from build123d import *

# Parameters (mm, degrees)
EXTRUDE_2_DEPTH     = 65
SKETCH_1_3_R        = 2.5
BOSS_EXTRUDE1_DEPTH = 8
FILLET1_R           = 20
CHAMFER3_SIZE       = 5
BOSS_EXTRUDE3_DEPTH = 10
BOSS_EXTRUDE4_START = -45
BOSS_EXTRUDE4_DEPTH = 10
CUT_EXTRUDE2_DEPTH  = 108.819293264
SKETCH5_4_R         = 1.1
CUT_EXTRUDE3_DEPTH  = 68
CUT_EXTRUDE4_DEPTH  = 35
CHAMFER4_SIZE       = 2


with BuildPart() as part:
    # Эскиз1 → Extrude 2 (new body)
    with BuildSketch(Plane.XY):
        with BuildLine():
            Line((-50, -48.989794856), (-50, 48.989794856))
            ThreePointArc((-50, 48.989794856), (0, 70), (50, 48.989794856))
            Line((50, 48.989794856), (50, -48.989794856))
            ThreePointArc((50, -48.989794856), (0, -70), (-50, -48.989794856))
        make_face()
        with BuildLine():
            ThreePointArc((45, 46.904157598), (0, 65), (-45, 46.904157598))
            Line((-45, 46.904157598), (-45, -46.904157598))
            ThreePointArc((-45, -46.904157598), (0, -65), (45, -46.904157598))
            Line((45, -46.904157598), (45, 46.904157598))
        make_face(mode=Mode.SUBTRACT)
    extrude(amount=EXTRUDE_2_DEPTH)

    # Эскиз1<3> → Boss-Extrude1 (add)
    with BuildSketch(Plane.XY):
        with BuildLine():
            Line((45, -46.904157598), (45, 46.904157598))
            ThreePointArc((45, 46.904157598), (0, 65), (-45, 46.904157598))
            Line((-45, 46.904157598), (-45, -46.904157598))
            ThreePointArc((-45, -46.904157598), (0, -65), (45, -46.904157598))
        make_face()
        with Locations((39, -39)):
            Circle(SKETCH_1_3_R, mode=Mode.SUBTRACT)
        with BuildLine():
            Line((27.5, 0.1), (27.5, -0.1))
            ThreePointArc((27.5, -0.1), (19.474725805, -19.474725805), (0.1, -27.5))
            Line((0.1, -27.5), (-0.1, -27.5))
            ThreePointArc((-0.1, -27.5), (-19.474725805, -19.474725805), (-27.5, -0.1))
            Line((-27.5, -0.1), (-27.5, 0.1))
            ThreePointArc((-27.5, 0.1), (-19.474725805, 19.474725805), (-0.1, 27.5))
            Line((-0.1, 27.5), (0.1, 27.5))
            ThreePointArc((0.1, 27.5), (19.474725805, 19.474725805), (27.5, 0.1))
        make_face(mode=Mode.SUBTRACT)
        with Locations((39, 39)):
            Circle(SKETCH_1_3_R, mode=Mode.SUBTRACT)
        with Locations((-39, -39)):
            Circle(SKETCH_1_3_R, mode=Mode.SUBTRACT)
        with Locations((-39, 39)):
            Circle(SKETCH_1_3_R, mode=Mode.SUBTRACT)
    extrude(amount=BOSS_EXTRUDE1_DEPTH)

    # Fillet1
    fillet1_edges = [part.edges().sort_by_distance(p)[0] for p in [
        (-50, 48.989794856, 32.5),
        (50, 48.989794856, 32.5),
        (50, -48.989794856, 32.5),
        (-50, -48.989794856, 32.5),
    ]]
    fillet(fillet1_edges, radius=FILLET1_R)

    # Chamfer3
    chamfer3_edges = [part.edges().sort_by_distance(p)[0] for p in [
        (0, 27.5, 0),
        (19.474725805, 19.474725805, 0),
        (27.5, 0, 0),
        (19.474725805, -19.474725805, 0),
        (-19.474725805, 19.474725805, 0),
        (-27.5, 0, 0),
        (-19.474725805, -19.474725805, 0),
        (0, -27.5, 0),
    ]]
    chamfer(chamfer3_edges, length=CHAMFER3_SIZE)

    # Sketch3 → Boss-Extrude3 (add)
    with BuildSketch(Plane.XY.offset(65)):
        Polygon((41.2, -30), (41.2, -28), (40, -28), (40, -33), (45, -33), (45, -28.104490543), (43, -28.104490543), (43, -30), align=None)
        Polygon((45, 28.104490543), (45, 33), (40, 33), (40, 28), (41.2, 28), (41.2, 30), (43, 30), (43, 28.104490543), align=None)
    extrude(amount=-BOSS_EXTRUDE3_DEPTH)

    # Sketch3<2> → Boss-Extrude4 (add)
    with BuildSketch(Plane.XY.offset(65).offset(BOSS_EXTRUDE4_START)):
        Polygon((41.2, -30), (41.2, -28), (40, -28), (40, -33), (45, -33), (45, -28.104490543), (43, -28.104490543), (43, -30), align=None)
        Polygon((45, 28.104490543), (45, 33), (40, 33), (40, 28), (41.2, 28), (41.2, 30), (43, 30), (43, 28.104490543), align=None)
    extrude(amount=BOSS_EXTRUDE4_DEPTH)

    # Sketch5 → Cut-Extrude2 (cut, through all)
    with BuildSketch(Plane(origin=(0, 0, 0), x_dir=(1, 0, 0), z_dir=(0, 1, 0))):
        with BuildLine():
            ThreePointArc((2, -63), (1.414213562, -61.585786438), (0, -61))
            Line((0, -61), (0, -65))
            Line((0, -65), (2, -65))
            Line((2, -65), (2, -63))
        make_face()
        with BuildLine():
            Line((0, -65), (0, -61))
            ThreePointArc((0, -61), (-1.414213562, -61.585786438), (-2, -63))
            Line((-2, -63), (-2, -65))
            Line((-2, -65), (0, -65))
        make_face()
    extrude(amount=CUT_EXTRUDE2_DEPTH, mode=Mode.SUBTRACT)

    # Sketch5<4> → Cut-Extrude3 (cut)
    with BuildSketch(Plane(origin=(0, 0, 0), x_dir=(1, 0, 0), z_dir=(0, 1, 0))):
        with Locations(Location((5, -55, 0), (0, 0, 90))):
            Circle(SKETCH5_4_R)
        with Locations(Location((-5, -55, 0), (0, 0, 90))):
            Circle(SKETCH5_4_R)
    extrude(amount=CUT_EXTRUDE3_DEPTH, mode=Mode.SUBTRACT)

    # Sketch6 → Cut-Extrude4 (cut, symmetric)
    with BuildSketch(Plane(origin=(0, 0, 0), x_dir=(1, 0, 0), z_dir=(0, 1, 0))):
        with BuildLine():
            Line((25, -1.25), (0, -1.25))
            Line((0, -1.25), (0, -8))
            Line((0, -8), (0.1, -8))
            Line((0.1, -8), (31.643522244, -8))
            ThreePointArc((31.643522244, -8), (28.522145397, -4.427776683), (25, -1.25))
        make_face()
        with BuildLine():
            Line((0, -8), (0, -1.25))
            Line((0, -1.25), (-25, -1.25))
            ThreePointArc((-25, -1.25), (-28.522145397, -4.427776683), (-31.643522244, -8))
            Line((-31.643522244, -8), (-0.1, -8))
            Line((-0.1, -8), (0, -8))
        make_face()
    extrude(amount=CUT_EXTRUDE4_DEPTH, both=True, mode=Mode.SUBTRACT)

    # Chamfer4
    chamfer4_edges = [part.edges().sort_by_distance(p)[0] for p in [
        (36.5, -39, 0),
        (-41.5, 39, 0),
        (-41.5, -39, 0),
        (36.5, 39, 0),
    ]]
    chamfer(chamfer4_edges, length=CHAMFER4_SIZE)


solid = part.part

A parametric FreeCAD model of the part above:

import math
import FreeCAD as App
import Part
import Sketcher
Q = App.Units.Quantity


def edges_at(feature, points):
    """Names of the edges that pass closest to the given points."""
    edges = feature.Shape.Edges
    near = lambda p: min(range(len(edges)), key=lambda i: edges[i].distToShape(Part.Vertex(*p))[0])
    return sorted({f"Edge{near(p) + 1}" for p in points})

doc = App.newDocument("Part")
body = doc.addObject("PartDesign::Body", "Body")

sketch1 = body.newObject("Sketcher::SketchObject", "Sketch")
sketch1.AttachmentSupport = (doc.getObject("XY_Plane"), [""])
sketch1.MapMode = "FlatFace"
sketch1.addGeometry([
    Part.LineSegment(App.Vector(-50, 48.989795, 0), App.Vector(-50, -48.989795, 0)),
    Part.ArcOfCircle(Part.Circle(App.Vector(0, 0, 0), App.Vector(0, 0, 1), 70), math.radians(-135.584691), math.radians(-44.415309)),
    Part.LineSegment(App.Vector(50, -48.989795, 0), App.Vector(50, 48.989795, 0)),
    Part.ArcOfCircle(Part.Circle(App.Vector(0, 0, 0), App.Vector(0, 0, 1), 70), math.radians(44.415309), math.radians(135.584691)),
    Part.LineSegment(App.Vector(45, 46.904158, 0), App.Vector(45, -46.904158, 0)),
    Part.ArcOfCircle(Part.Circle(App.Vector(0, 0, 0), App.Vector(0, 0, 1), 65), math.radians(-133.813061), math.radians(-46.186939)),
    Part.LineSegment(App.Vector(-45, -46.904158, 0), App.Vector(-45, 46.904158, 0)),
    Part.ArcOfCircle(Part.Circle(App.Vector(0, 0, 0), App.Vector(0, 0, 1), 65), math.radians(46.186939), math.radians(133.813061)),
], False)
sketch1.addConstraint([
    Sketcher.Constraint("Coincident", 0, 2, 1, 1),
    Sketcher.Constraint("Coincident", 1, 2, 2, 1),
    Sketcher.Constraint("Coincident", 2, 2, 3, 1),
    Sketcher.Constraint("Coincident", 3, 2, 0, 1),
    Sketcher.Constraint("Coincident", 4, 2, 5, 2),
    Sketcher.Constraint("Coincident", 5, 1, 6, 1),
    Sketcher.Constraint("Coincident", 6, 2, 7, 2),
    Sketcher.Constraint("Coincident", 7, 1, 4, 1),
    Sketcher.Constraint("Vertical", 0),
    Sketcher.Constraint("Vertical", 2),
    Sketcher.Constraint("Vertical", 4),
    Sketcher.Constraint("Vertical", 6),
    Sketcher.Constraint("Coincident", 1, 3, -1, 1),
    Sketcher.Constraint("Coincident", 3, 3, -1, 1),
    Sketcher.Constraint("Coincident", 5, 3, -1, 1),
    Sketcher.Constraint("Coincident", 7, 3, -1, 1),
    Sketcher.Constraint("Equal", 1, 3),
    Sketcher.Constraint("Equal", 5, 7),
    Sketcher.Constraint("Horizontal", 0, 2, 1, 2),
    Sketcher.Constraint("Horizontal", 4, 2, 5, 1),
    Sketcher.Constraint("Radius", 1, Q("70 mm")),
    Sketcher.Constraint("Radius", 5, Q("65 mm")),
    Sketcher.Constraint("DistanceX", 0, 2, -1, 1, Q("50 mm")),
    Sketcher.Constraint("DistanceX", -1, 1, 4, 2, Q("45 mm")),
])
pad1 = body.newObject("PartDesign::Pad", "Pad")
pad1.Profile = sketch1
pad1.Length = 65

sketch2 = body.newObject("Sketcher::SketchObject", "Sketch001")
sketch2.AttachmentSupport = (doc.getObject("XY_Plane"), [""])
sketch2.MapMode = "FlatFace"
sketch2.addGeometry([
    Part.LineSegment(App.Vector(45, -46.904158, 0), App.Vector(45, 46.904158, 0)),
    Part.ArcOfCircle(Part.Circle(App.Vector(0, 0, 0), App.Vector(0, 0, 1), 65), math.radians(46.186939), math.radians(133.813061)),
    Part.LineSegment(App.Vector(-45, 46.904158, 0), App.Vector(-45, -46.904158, 0)),
    Part.ArcOfCircle(Part.Circle(App.Vector(0, 0, 0), App.Vector(0, 0, 1), 65), math.radians(-133.813061), math.radians(-46.186939)),
    Part.Circle(App.Vector(-39, -39, 0), App.Vector(0, 0, 1), 2.5),
    Part.Circle(App.Vector(39, -39, 0), App.Vector(0, 0, 1), 2.5),
    Part.Circle(App.Vector(-39, 39, 0), App.Vector(0, 0, 1), 2.5),
    Part.ArcOfCircle(Part.Circle(App.Vector(0.1, 0.1, 0), App.Vector(0, 0, 1), 27.4), math.radians(0), math.radians(90)),
    Part.LineSegment(App.Vector(27.5, 0.1, 0), App.Vector(27.5, -0.1, 0)),
    Part.ArcOfCircle(Part.Circle(App.Vector(0.1, -0.1, 0), App.Vector(0, 0, 1), 27.4), math.radians(-90), math.radians(0)),
    Part.LineSegment(App.Vector(0.1, -27.5, 0), App.Vector(-0.1, -27.5, 0)),
    Part.ArcOfCircle(Part.Circle(App.Vector(-0.1, -0.1, 0), App.Vector(0, 0, 1), 27.4), math.radians(180), math.radians(270)),
    Part.LineSegment(App.Vector(-27.5, -0.1, 0), App.Vector(-27.5, 0.1, 0)),
    Part.ArcOfCircle(Part.Circle(App.Vector(-0.1, 0.1, 0), App.Vector(0, 0, 1), 27.4), math.radians(90), math.radians(180)),
    Part.LineSegment(App.Vector(-0.1, 27.5, 0), App.Vector(0.1, 27.5, 0)),
    Part.Circle(App.Vector(39, 39, 0), App.Vector(0, 0, 1), 2.5),
], False)
sketch2.addConstraint([
    Sketcher.Constraint("Coincident", 0, 2, 1, 1),
    Sketcher.Constraint("Coincident", 1, 2, 2, 1),
    Sketcher.Constraint("Coincident", 2, 2, 3, 1),
    Sketcher.Constraint("Coincident", 3, 2, 0, 1),
    Sketcher.Constraint("Tangent", 7, 1, 8, 1),
    Sketcher.Constraint("Tangent", 8, 2, 9, 2),
    Sketcher.Constraint("Tangent", 9, 1, 10, 1),
    Sketcher.Constraint("Tangent", 10, 2, 11, 2),
    Sketcher.Constraint("Tangent", 11, 1, 12, 1),
    Sketcher.Constraint("Tangent", 12, 2, 13, 2),
    Sketcher.Constraint("Tangent", 13, 1, 14, 1),
    Sketcher.Constraint("Tangent", 14, 2, 7, 2),
    Sketcher.Constraint("Vertical", 0),
    Sketcher.Constraint("Vertical", 2),
    Sketcher.Constraint("Vertical", 8),
    Sketcher.Constraint("Horizontal", 10),
    Sketcher.Constraint("Vertical", 12),
    Sketcher.Constraint("Horizontal", 14),
    Sketcher.Constraint("Coincident", 1, 3, -1, 1),
    Sketcher.Constraint("Coincident", 3, 3, -1, 1),
    Sketcher.Constraint("Equal", 1, 3),
    Sketcher.Constraint("Equal", 4, 5),
    Sketcher.Constraint("Equal", 5, 6),
    Sketcher.Constraint("Equal", 7, 9),
    Sketcher.Constraint("Equal", 9, 11),
    Sketcher.Constraint("Equal", 11, 13),
    Sketcher.Constraint("Equal", 6, 15),
    Sketcher.Constraint("Symmetric", 5, 3, 6, 3, -1, 1),
    Sketcher.Constraint("Symmetric", 7, 3, 11, 3, -1, 1),
    Sketcher.Constraint("Symmetric", 4, 3, 15, 3, -1, 1),
    Sketcher.Constraint("Symmetric", 4, 3, 5, 3, -2),
    Sketcher.Constraint("Horizontal", 0, 2, 1, 2),
    Sketcher.Constraint("Equal", 14, 8),
    Sketcher.Constraint("Diameter", 4, Q("5 mm")),
    Sketcher.Constraint("Radius", 1, Q("65 mm")),
    Sketcher.Constraint("Radius", 7, Q("27.4 mm")),
    Sketcher.Constraint("DistanceX", 10, 2, 10, 1, Q("0.2 mm")),
    Sketcher.Constraint("DistanceX", 4, 3, -1, 1, Q("39 mm")),
    Sketcher.Constraint("DistanceY", 4, 3, -1, 1, Q("39 mm")),
    Sketcher.Constraint("DistanceX", -1, 1, 0, 2, Q("45 mm")),
])
pad2 = body.newObject("PartDesign::Pad", "Pad001")
pad2.Profile = sketch2
pad2.Length = 8
doc.recompute()

fillet = body.newObject("PartDesign::Fillet", "Fillet")
fillet.Base = (pad2, edges_at(pad2, [
    (-50, 48.99, 32.5),
    (50, 48.99, 32.5),
    (50, -48.99, 32.5),
    (-50, -48.99, 32.5),
]))
fillet.Radius = 20
doc.recompute()

chamfer = body.newObject("PartDesign::Chamfer", "Chamfer")
chamfer.Base = (fillet, edges_at(fillet, [
    (0, 27.5, 0),
    (19.475, 19.475, 0),
    (27.5, 0, 0),
    (19.475, -19.475, 0),
    (-19.475, 19.475, 0),
    (-27.5, 0, 0),
    (-19.475, -19.475, 0),
    (0, -27.5, 0),
]))
chamfer.Size = 5

sketch3 = body.newObject("Sketcher::SketchObject", "Sketch002")
sketch3.AttachmentSupport = (doc.getObject("XY_Plane"), [""])
sketch3.MapMode = "FlatFace"
sketch3.AttachmentOffset = App.Placement(App.Vector(0, 0, 65), App.Rotation())
sketch3.addGeometry([
    Part.LineSegment(App.Vector(41.2, -30, 0), App.Vector(41.2, -28, 0)),
    Part.LineSegment(App.Vector(41.2, -28, 0), App.Vector(40, -28, 0)),
    Part.LineSegment(App.Vector(40, -28, 0), App.Vector(40, -33, 0)),
    Part.LineSegment(App.Vector(40, -33, 0), App.Vector(45, -33, 0)),
    Part.LineSegment(App.Vector(45, -33, 0), App.Vector(45, -28.104491, 0)),
    Part.LineSegment(App.Vector(45, -28.104491, 0), App.Vector(43, -28.104491, 0)),
    Part.LineSegment(App.Vector(43, -28.104491, 0), App.Vector(43, -30, 0)),
    Part.LineSegment(App.Vector(43, -30, 0), App.Vector(41.2, -30, 0)),
    Part.LineSegment(App.Vector(45, 28.104491, 0), App.Vector(45, 33, 0)),
    Part.LineSegment(App.Vector(45, 33, 0), App.Vector(40, 33, 0)),
    Part.LineSegment(App.Vector(40, 33, 0), App.Vector(40, 28, 0)),
    Part.LineSegment(App.Vector(40, 28, 0), App.Vector(41.2, 28, 0)),
    Part.LineSegment(App.Vector(41.2, 28, 0), App.Vector(41.2, 30, 0)),
    Part.LineSegment(App.Vector(41.2, 30, 0), App.Vector(43, 30, 0)),
    Part.LineSegment(App.Vector(43, 30, 0), App.Vector(43, 28.104491, 0)),
    Part.LineSegment(App.Vector(43, 28.104491, 0), App.Vector(45, 28.104491, 0)),
], False)
sketch3.addConstraint([
    Sketcher.Constraint("Coincident", 0, 2, 1, 1),
    Sketcher.Constraint("Coincident", 1, 2, 2, 1),
    Sketcher.Constraint("Coincident", 2, 2, 3, 1),
    Sketcher.Constraint("Coincident", 3, 2, 4, 1),
    Sketcher.Constraint("Coincident", 4, 2, 5, 1),
    Sketcher.Constraint("Coincident", 5, 2, 6, 1),
    Sketcher.Constraint("Coincident", 6, 2, 7, 1),
    Sketcher.Constraint("Coincident", 7, 2, 0, 1),
    Sketcher.Constraint("Coincident", 8, 2, 9, 1),
    Sketcher.Constraint("Coincident", 9, 2, 10, 1),
    Sketcher.Constraint("Coincident", 10, 2, 11, 1),
    Sketcher.Constraint("Coincident", 11, 2, 12, 1),
    Sketcher.Constraint("Coincident", 12, 2, 13, 1),
    Sketcher.Constraint("Coincident", 13, 2, 14, 1),
    Sketcher.Constraint("Coincident", 14, 2, 15, 1),
    Sketcher.Constraint("Coincident", 15, 2, 8, 1),
    Sketcher.Constraint("Vertical", 0),
    Sketcher.Constraint("Horizontal", 1),
    Sketcher.Constraint("Vertical", 2),
    Sketcher.Constraint("Horizontal", 3),
    Sketcher.Constraint("Vertical", 4),
    Sketcher.Constraint("Horizontal", 5),
    Sketcher.Constraint("Vertical", 6),
    Sketcher.Constraint("Horizontal", 7),
    Sketcher.Constraint("Vertical", 8),
    Sketcher.Constraint("Horizontal", 9),
    Sketcher.Constraint("Vertical", 10),
    Sketcher.Constraint("Horizontal", 11),
    Sketcher.Constraint("Vertical", 12),
    Sketcher.Constraint("Horizontal", 13),
    Sketcher.Constraint("Vertical", 14),
    Sketcher.Constraint("Horizontal", 15),
    Sketcher.Constraint("Symmetric", 3, 2, 8, 2, -1),
    Sketcher.Constraint("Symmetric", 1, 2, 10, 2, -1),
    Sketcher.Constraint("Symmetric", 7, 2, 12, 2, -1),
    Sketcher.Constraint("Symmetric", 5, 2, 14, 2, -1),
    Sketcher.Constraint("Equal", 15, 0),
    Sketcher.Constraint("Equal", 9, 2),
    Sketcher.Constraint("DistanceX", 3, 1, 3, 2, Q("5 mm")),
    Sketcher.Constraint("DistanceX", 5, 2, 5, 1, Q("2 mm")),
    Sketcher.Constraint("DistanceX", 1, 2, 1, 1, Q("1.2 mm")),
    Sketcher.Constraint("DistanceY", 0, 2, -1, 1, Q("28 mm")),
    Sketcher.Constraint("DistanceX", -1, 1, 1, 2, Q("40 mm")),
    Sketcher.Constraint("DistanceY", 4, 1, 4, 2, Q("4.895509 mm")),
])
pad3 = body.newObject("PartDesign::Pad", "Pad002")
pad3.Profile = sketch3
pad3.Length = 10
pad3.Reversed = True

sketch4 = body.newObject("Sketcher::SketchObject", "Sketch003")
sketch4.AttachmentSupport = (doc.getObject("XY_Plane"), [""])
sketch4.MapMode = "FlatFace"
sketch4.AttachmentOffset = App.Placement(App.Vector(0, 0, 20), App.Rotation())
sketch4.addGeometry([
    Part.LineSegment(App.Vector(41.2, -30, 0), App.Vector(41.2, -28, 0)),
    Part.LineSegment(App.Vector(41.2, -28, 0), App.Vector(40, -28, 0)),
    Part.LineSegment(App.Vector(40, -28, 0), App.Vector(40, -33, 0)),
    Part.LineSegment(App.Vector(40, -33, 0), App.Vector(45, -33, 0)),
    Part.LineSegment(App.Vector(45, -33, 0), App.Vector(45, -28.104491, 0)),
    Part.LineSegment(App.Vector(45, -28.104491, 0), App.Vector(43, -28.104491, 0)),
    Part.LineSegment(App.Vector(43, -28.104491, 0), App.Vector(43, -30, 0)),
    Part.LineSegment(App.Vector(43, -30, 0), App.Vector(41.2, -30, 0)),
    Part.LineSegment(App.Vector(45, 28.104491, 0), App.Vector(45, 33, 0)),
    Part.LineSegment(App.Vector(45, 33, 0), App.Vector(40, 33, 0)),
    Part.LineSegment(App.Vector(40, 33, 0), App.Vector(40, 28, 0)),
    Part.LineSegment(App.Vector(40, 28, 0), App.Vector(41.2, 28, 0)),
    Part.LineSegment(App.Vector(41.2, 28, 0), App.Vector(41.2, 30, 0)),
    Part.LineSegment(App.Vector(41.2, 30, 0), App.Vector(43, 30, 0)),
    Part.LineSegment(App.Vector(43, 30, 0), App.Vector(43, 28.104491, 0)),
    Part.LineSegment(App.Vector(43, 28.104491, 0), App.Vector(45, 28.104491, 0)),
], False)
sketch4.addConstraint([
    Sketcher.Constraint("Coincident", 0, 2, 1, 1),
    Sketcher.Constraint("Coincident", 1, 2, 2, 1),
    Sketcher.Constraint("Coincident", 2, 2, 3, 1),
    Sketcher.Constraint("Coincident", 3, 2, 4, 1),
    Sketcher.Constraint("Coincident", 4, 2, 5, 1),
    Sketcher.Constraint("Coincident", 5, 2, 6, 1),
    Sketcher.Constraint("Coincident", 6, 2, 7, 1),
    Sketcher.Constraint("Coincident", 7, 2, 0, 1),
    Sketcher.Constraint("Coincident", 8, 2, 9, 1),
    Sketcher.Constraint("Coincident", 9, 2, 10, 1),
    Sketcher.Constraint("Coincident", 10, 2, 11, 1),
    Sketcher.Constraint("Coincident", 11, 2, 12, 1),
    Sketcher.Constraint("Coincident", 12, 2, 13, 1),
    Sketcher.Constraint("Coincident", 13, 2, 14, 1),
    Sketcher.Constraint("Coincident", 14, 2, 15, 1),
    Sketcher.Constraint("Coincident", 15, 2, 8, 1),
    Sketcher.Constraint("Vertical", 0),
    Sketcher.Constraint("Horizontal", 1),
    Sketcher.Constraint("Vertical", 2),
    Sketcher.Constraint("Horizontal", 3),
    Sketcher.Constraint("Vertical", 4),
    Sketcher.Constraint("Horizontal", 5),
    Sketcher.Constraint("Vertical", 6),
    Sketcher.Constraint("Horizontal", 7),
    Sketcher.Constraint("Vertical", 8),
    Sketcher.Constraint("Horizontal", 9),
    Sketcher.Constraint("Vertical", 10),
    Sketcher.Constraint("Horizontal", 11),
    Sketcher.Constraint("Vertical", 12),
    Sketcher.Constraint("Horizontal", 13),
    Sketcher.Constraint("Vertical", 14),
    Sketcher.Constraint("Horizontal", 15),
    Sketcher.Constraint("Symmetric", 3, 2, 8, 2, -1),
    Sketcher.Constraint("Symmetric", 1, 2, 10, 2, -1),
    Sketcher.Constraint("Symmetric", 7, 2, 12, 2, -1),
    Sketcher.Constraint("Symmetric", 5, 2, 14, 2, -1),
    Sketcher.Constraint("Equal", 15, 0),
    Sketcher.Constraint("Equal", 9, 2),
    Sketcher.Constraint("DistanceX", 3, 1, 3, 2, Q("5 mm")),
    Sketcher.Constraint("DistanceX", 5, 2, 5, 1, Q("2 mm")),
    Sketcher.Constraint("DistanceX", 1, 2, 1, 1, Q("1.2 mm")),
    Sketcher.Constraint("DistanceY", 0, 2, -1, 1, Q("28 mm")),
    Sketcher.Constraint("DistanceX", -1, 1, 1, 2, Q("40 mm")),
    Sketcher.Constraint("DistanceY", 4, 1, 4, 2, Q("4.895509 mm")),
])
pad4 = body.newObject("PartDesign::Pad", "Pad003")
pad4.Profile = sketch4
pad4.Length = 10

sketch5 = body.newObject("Sketcher::SketchObject", "Sketch004")
sketch5.AttachmentSupport = (doc.getObject("XZ_Plane"), [""])
sketch5.MapMode = "FlatFace"
sketch5.addGeometry([
    Part.ArcOfCircle(Part.Circle(App.Vector(0, 63, 0), App.Vector(0, 0, 1), 2), math.radians(-90), math.radians(0)),
    Part.ArcOfCircle(Part.Circle(App.Vector(0, 63, 0), App.Vector(0, 0, 1), 2), math.radians(-180), math.radians(-90)),
    Part.LineSegment(App.Vector(-2, 63, 0), App.Vector(-2, 65, 0)),
    Part.LineSegment(App.Vector(-2, 65, 0), App.Vector(2, 65, 0)),
    Part.LineSegment(App.Vector(2, 65, 0), App.Vector(2, 63, 0)),
], False)
sketch5.addConstraint([
    Sketcher.Constraint("Tangent", 0, 1, 1, 2),
    Sketcher.Constraint("Tangent", 1, 1, 2, 1),
    Sketcher.Constraint("Coincident", 2, 2, 3, 1),
    Sketcher.Constraint("Coincident", 3, 2, 4, 1),
    Sketcher.Constraint("Tangent", 4, 2, 0, 2),
    Sketcher.Constraint("Vertical", 2),
    Sketcher.Constraint("Horizontal", 3),
    Sketcher.Constraint("Vertical", 4),
    Sketcher.Constraint("Equal", 0, 1),
    Sketcher.Constraint("PointOnObject", 0, 3, -2),
    Sketcher.Constraint("PointOnObject", 0, 1, -2),
    Sketcher.Constraint("Radius", 0, Q("2 mm")),
    Sketcher.Constraint("DistanceY", 2, 1, 2, 2, Q("2 mm")),
    Sketcher.Constraint("DistanceY", -1, 1, 0, 3, Q("63 mm")),
])
pocket1 = body.newObject("PartDesign::Pocket", "Pocket")
pocket1.Profile = sketch5
pocket1.Type = "ThroughAll"

sketch6 = body.newObject("Sketcher::SketchObject", "Sketch005")
sketch6.AttachmentSupport = (doc.getObject("XZ_Plane"), [""])
sketch6.MapMode = "FlatFace"
sketch6.addGeometry([
    Part.Circle(App.Vector(5, 55, 0), App.Vector(0, 0, 1), 1.1),
    Part.Circle(App.Vector(-5, 55, 0), App.Vector(0, 0, 1), 1.1),
], False)
sketch6.addConstraint([
    Sketcher.Constraint("Equal", 0, 1),
    Sketcher.Constraint("Symmetric", 0, 3, 1, 3, -2),
    Sketcher.Constraint("Diameter", 0, Q("2.2 mm")),
    Sketcher.Constraint("DistanceX", -1, 1, 0, 3, Q("5 mm")),
    Sketcher.Constraint("DistanceY", -1, 1, 0, 3, Q("55 mm")),
])
pocket2 = body.newObject("PartDesign::Pocket", "Pocket001")
pocket2.Profile = sketch6
pocket2.Length = 68

sketch7 = body.newObject("Sketcher::SketchObject", "Sketch006")
sketch7.AttachmentSupport = (doc.getObject("XZ_Plane"), [""])
sketch7.MapMode = "FlatFace"
sketch7.addGeometry([
    Part.LineSegment(App.Vector(25, 1.25, 0), App.Vector(-25, 1.25, 0)),
    Part.ArcOfCircle(Part.Circle(App.Vector(0, 32.5, 0), App.Vector(0, 0, 1), 40.019526), math.radians(-142.251169), math.radians(-128.659808)),
    Part.LineSegment(App.Vector(-31.643522, 8, 0), App.Vector(31.643522, 8, 0)),
    Part.ArcOfCircle(Part.Circle(App.Vector(0, 32.5, 0), App.Vector(0, 0, 1), 40.019526), math.radians(-51.340192), math.radians(-37.748831)),
], False)
sketch7.addConstraint([
    Sketcher.Constraint("Coincident", 0, 2, 1, 2),
    Sketcher.Constraint("Coincident", 1, 1, 2, 1),
    Sketcher.Constraint("Coincident", 2, 2, 3, 2),
    Sketcher.Constraint("Coincident", 3, 1, 0, 1),
    Sketcher.Constraint("Horizontal", 0),
    Sketcher.Constraint("Horizontal", 2),
    Sketcher.Constraint("Coincident", 3, 3, 1, 3),
    Sketcher.Constraint("Equal", 1, 3),
    Sketcher.Constraint("PointOnObject", 1, 3, -2),
    Sketcher.Constraint("DistanceX", 0, 2, 0, 1, Q("50 mm")),
    Sketcher.Constraint("DistanceY", -1, 1, 1, 1, Q("8 mm")),
    Sketcher.Constraint("DistanceY", -1, 1, 1, 3, Q("32.5 mm")),
    Sketcher.Constraint("DistanceY", -1, 1, 0, 2, Q("1.25 mm")),
])
pocket3 = body.newObject("PartDesign::Pocket", "Pocket002")
pocket3.Profile = sketch7
pocket3.Length = 70
pocket3.Midplane = True
doc.recompute()

chamfer2 = body.newObject("PartDesign::Chamfer", "Chamfer001")
chamfer2.Base = (pocket3, edges_at(pocket3, [
    (36.5, -39, 0),
    (-41.5, 39, 0),
    (-41.5, -39, 0),
    (36.5, 39, 0),
]))
chamfer2.Size = 2

doc.recompute()
